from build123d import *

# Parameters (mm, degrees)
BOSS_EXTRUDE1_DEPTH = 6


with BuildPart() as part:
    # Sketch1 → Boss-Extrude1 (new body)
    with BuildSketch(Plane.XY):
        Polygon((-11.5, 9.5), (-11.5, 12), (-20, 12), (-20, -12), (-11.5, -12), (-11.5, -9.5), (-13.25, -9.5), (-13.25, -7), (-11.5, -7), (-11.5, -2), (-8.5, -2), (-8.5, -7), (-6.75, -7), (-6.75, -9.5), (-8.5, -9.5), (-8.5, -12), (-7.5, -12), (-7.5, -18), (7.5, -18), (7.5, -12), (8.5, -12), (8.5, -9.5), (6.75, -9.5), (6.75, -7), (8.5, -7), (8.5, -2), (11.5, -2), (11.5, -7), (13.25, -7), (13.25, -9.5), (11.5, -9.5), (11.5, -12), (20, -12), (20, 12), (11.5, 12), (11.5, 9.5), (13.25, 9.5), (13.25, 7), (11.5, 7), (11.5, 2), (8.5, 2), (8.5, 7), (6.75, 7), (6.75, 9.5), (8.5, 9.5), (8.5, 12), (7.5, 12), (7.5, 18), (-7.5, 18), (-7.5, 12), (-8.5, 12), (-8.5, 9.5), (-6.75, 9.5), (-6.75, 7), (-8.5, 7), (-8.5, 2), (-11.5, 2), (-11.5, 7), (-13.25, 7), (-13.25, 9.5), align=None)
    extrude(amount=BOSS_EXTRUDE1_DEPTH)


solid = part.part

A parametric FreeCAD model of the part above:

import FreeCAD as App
import Part
import Sketcher

doc = App.newDocument("Part")
body = doc.addObject("PartDesign::Body", "Body")

# Sketch on XY plane
sketch1 = body.newObject("Sketcher::SketchObject", "Sketch")
sketch1.AttachmentSupport = (doc.getObject("XY_Plane"), [""])
sketch1.MapMode = "FlatFace"
sketch1.addGeometry([
    Part.LineSegment(App.Vector(-11.5, 9.5, 0), App.Vector(-11.5, 12, 0)),  # 0
    Part.LineSegment(App.Vector(-11.5, 12, 0), App.Vector(-20, 12, 0)),  # 1
    Part.LineSegment(App.Vector(-20, 12, 0), App.Vector(-20, -12, 0)),  # 2
    Part.LineSegment(App.Vector(-20, -12, 0), App.Vector(-11.5, -12, 0)),  # 3
    Part.LineSegment(App.Vector(-11.5, -12, 0), App.Vector(-11.5, -9.5, 0)),  # 4
    Part.LineSegment(App.Vector(-11.5, -9.5, 0), App.Vector(-13.2, -9.5, 0)),  # 5
    Part.LineSegment(App.Vector(-13.2, -9.5, 0), App.Vector(-13.2, -7, 0)),  # 6
    Part.LineSegment(App.Vector(-13.2, -7, 0), App.Vector(-11.5, -7, 0)),  # 7
    Part.LineSegment(App.Vector(-11.5, -7, 0), App.Vector(-11.5, -2, 0)),  # 8
    Part.LineSegment(App.Vector(-11.5, -2, 0), App.Vector(-8.5, -2, 0)),  # 9
    Part.LineSegment(App.Vector(-8.5, -2, 0), App.Vector(-8.5, -7, 0)),  # 10
    Part.LineSegment(App.Vector(-8.5, -7, 0), App.Vector(-6.8, -7, 0)),  # 11
    Part.LineSegment(App.Vector(-6.8, -7, 0), App.Vector(-6.8, -9.5, 0)),  # 12
    Part.LineSegment(App.Vector(-6.8, -9.5, 0), App.Vector(-8.5, -9.5, 0)),  # 13
    Part.LineSegment(App.Vector(-8.5, -9.5, 0), App.Vector(-8.5, -12, 0)),  # 14
    Part.LineSegment(App.Vector(-8.5, -12, 0), App.Vector(-7.5, -12, 0)),  # 15
    Part.LineSegment(App.Vector(-7.5, -12, 0), App.Vector(-7.5, -18, 0)),  # 16
    Part.LineSegment(App.Vector(-7.5, -18, 0), App.Vector(7.5, -18, 0)),  # 17
    Part.LineSegment(App.Vector(7.5, -18, 0), App.Vector(7.5, -12, 0)),  # 18
    Part.LineSegment(App.Vector(7.5, -12, 0), App.Vector(8.5, -12, 0)),  # 19
    Part.LineSegment(App.Vector(8.5, -12, 0), App.Vector(8.5, -9.5, 0)),  # 20
    Part.LineSegment(App.Vector(8.5, -9.5, 0), App.Vector(6.8, -9.5, 0)),  # 21
    Part.LineSegment(App.Vector(6.8, -9.5, 0), App.Vector(6.8, -7, 0)),  # 22
    Part.LineSegment(App.Vector(6.8, -7, 0), App.Vector(8.5, -7, 0)),  # 23
    Part.LineSegment(App.Vector(8.5, -7, 0), App.Vector(8.5, -2, 0)),  # 24
    Part.LineSegment(App.Vector(8.5, -2, 0), App.Vector(11.5, -2, 0)),  # 25
    Part.LineSegment(App.Vector(11.5, -2, 0), App.Vector(11.5, -7, 0)),  # 26
    Part.LineSegment(App.Vector(11.5, -7, 0), App.Vector(13.2, -7, 0)),  # 27
    Part.LineSegment(App.Vector(13.2, -7, 0), App.Vector(13.2, -9.5, 0)),  # 28
    Part.LineSegment(App.Vector(13.2, -9.5, 0), App.Vector(11.5, -9.5, 0)),  # 29
    Part.LineSegment(App.Vector(11.5, -9.5, 0), App.Vector(11.5, -12, 0)),  # 30
    Part.LineSegment(App.Vector(11.5, -12, 0), App.Vector(20, -12, 0)),  # 31
    Part.LineSegment(App.Vector(20, -12, 0), App.Vector(20, 12, 0)),  # 32
    Part.LineSegment(App.Vector(20, 12, 0), App.Vector(11.5, 12, 0)),  # 33
    Part.LineSegment(App.Vector(11.5, 12, 0), App.Vector(11.5, 9.5, 0)),  # 34
    Part.LineSegment(App.Vector(11.5, 9.5, 0), App.Vector(13.2, 9.5, 0)),  # 35
    Part.LineSegment(App.Vector(13.2, 9.5, 0), App.Vector(13.2, 7, 0)),  # 36
    Part.LineSegment(App.Vector(13.2, 7, 0), App.Vector(11.5, 7, 0)),  # 37
    Part.LineSegment(App.Vector(11.5, 7, 0), App.Vector(11.5, 2, 0)),  # 38
    Part.LineSegment(App.Vector(11.5, 2, 0), App.Vector(8.5, 2, 0)),  # 39
    Part.LineSegment(App.Vector(8.5, 2, 0), App.Vector(8.5, 7, 0)),  # 40
    Part.LineSegment(App.Vector(8.5, 7, 0), App.Vector(6.8, 7, 0)),  # 41
    Part.LineSegment(App.Vector(6.8, 7, 0), App.Vector(6.8, 9.5, 0)),  # 42
    Part.LineSegment(App.Vector(6.8, 9.5, 0), App.Vector(8.5, 9.5, 0)),  # 43
    Part.LineSegment(App.Vector(8.5, 9.5, 0), App.Vector(8.5, 12, 0)),  # 44
    Part.LineSegment(App.Vector(8.5, 12, 0), App.Vector(7.5, 12, 0)),  # 45
    Part.LineSegment(App.Vector(7.5, 12, 0), App.Vector(7.5, 18, 0)),  # 46
    Part.LineSegment(App.Vector(7.5, 18, 0), App.Vector(-7.5, 18, 0)),  # 47
    Part.LineSegment(App.Vector(-7.5, 18, 0), App.Vector(-7.5, 12, 0)),  # 48
    Part.LineSegment(App.Vector(-7.5, 12, 0), App.Vector(-8.5, 12, 0)),  # 49
    Part.LineSegment(App.Vector(-8.5, 12, 0), App.Vector(-8.5, 9.5, 0)),  # 50
    Part.LineSegment(App.Vector(-8.5, 9.5, 0), App.Vector(-6.8, 9.5, 0)),  # 51
    Part.LineSegment(App.Vector(-6.8, 9.5, 0), App.Vector(-6.8, 7, 0)),  # 52
    Part.LineSegment(App.Vector(-6.8, 7, 0), App.Vector(-8.5, 7, 0)),  # 53
    Part.LineSegment(App.Vector(-8.5, 7, 0), App.Vector(-8.5, 2, 0)),  # 54
    Part.LineSegment(App.Vector(-8.5, 2, 0), App.Vector(-11.5, 2, 0)),  # 55
    Part.LineSegment(App.Vector(-11.5, 2, 0), App.Vector(-11.5, 7, 0)),  # 56
    Part.LineSegment(App.Vector(-11.5, 7, 0), App.Vector(-13.2, 7, 0)),  # 57
    Part.LineSegment(App.Vector(-13.2, 7, 0), App.Vector(-13.2, 9.5, 0)),  # 58
    Part.LineSegment(App.Vector(-13.2, 9.5, 0), App.Vector(-11.5, 9.5, 0)),  # 59
], False)
sketch1.addConstraint([
    Sketcher.Constraint("Coincident", 0, 2, 1, 1),
    Sketcher.Constraint("Coincident", 1, 2, 2, 1),
    Sketcher.Constraint("Coincident", 2, 2, 3, 1),
    Sketcher.Constraint("Coincident", 3, 2, 4, 1),
    Sketcher.Constraint("Coincident", 4, 2, 5, 1),
    Sketcher.Constraint("Coincident", 5, 2, 6, 1),
    Sketcher.Constraint("Coincident", 6, 2, 7, 1),
    Sketcher.Constraint("Coincident", 7, 2, 8, 1),
    Sketcher.Constraint("Coincident", 8, 2, 9, 1),
    Sketcher.Constraint("Coincident", 9, 2, 10, 1),
    Sketcher.Constraint("Coincident", 10, 2, 11, 1),
    Sketcher.Constraint("Coincident", 11, 2, 12, 1),
    Sketcher.Constraint("Coincident", 12, 2, 13, 1),
    Sketcher.Constraint("Coincident", 13, 2, 14, 1),
    Sketcher.Constraint("Coincident", 14, 2, 15, 1),
    Sketcher.Constraint("Coincident", 15, 2, 16, 1),
    Sketcher.Constraint("Coincident", 16, 2, 17, 1),
    Sketcher.Constraint("Coincident", 17, 2, 18, 1),
    Sketcher.Constraint("Coincident", 18, 2, 19, 1),
    Sketcher.Constraint("Coincident", 19, 2, 20, 1),
    Sketcher.Constraint("Coincident", 20, 2, 21, 1),
    Sketcher.Constraint("Coincident", 21, 2, 22, 1),
    Sketcher.Constraint("Coincident", 22, 2, 23, 1),
    Sketcher.Constraint("Coincident", 23, 2, 24, 1),
    Sketcher.Constraint("Coincident", 24, 2, 25, 1),
    Sketcher.Constraint("Coincident", 25, 2, 26, 1),
    Sketcher.Constraint("Coincident", 26, 2, 27, 1),
    Sketcher.Constraint("Coincident", 27, 2, 28, 1),
    Sketcher.Constraint("Coincident", 28, 2, 29, 1),
    Sketcher.Constraint("Coincident", 29, 2, 30, 1),
    Sketcher.Constraint("Coincident", 30, 2, 31, 1),
    Sketcher.Constraint("Coincident", 31, 2, 32, 1),
    Sketcher.Constraint("Coincident", 32, 2, 33, 1),
    Sketcher.Constraint("Coincident", 33, 2, 34, 1),
    Sketcher.Constraint("Coincident", 34, 2, 35, 1),
    Sketcher.Constraint("Coincident", 35, 2, 36, 1),
    Sketcher.Constraint("Coincident", 36, 2, 37, 1),
    Sketcher.Constraint("Coincident", 37, 2, 38, 1),
    Sketcher.Constraint("Coincident", 38, 2, 39, 1),
    Sketcher.Constraint("Coincident", 39, 2, 40, 1),
    Sketcher.Constraint("Coincident", 40, 2, 41, 1),
    Sketcher.Constraint("Coincident", 41, 2, 42, 1),
    Sketcher.Constraint("Coincident", 42, 2, 43, 1),
    Sketcher.Constraint("Coincident", 43, 2, 44, 1),
    Sketcher.Constraint("Coincident", 44, 2, 45, 1),
    Sketcher.Constraint("Coincident", 45, 2, 46, 1),
    Sketcher.Constraint("Coincident", 46, 2, 47, 1),
    Sketcher.Constraint("Coincident", 47, 2, 48, 1),
    Sketcher.Constraint("Coincident", 48, 2, 49, 1),
    Sketcher.Constraint("Coincident", 49, 2, 50, 1),
    Sketcher.Constraint("Coincident", 50, 2, 51, 1),
    Sketcher.Constraint("Coincident", 51, 2, 52, 1),
    Sketcher.Constraint("Coincident", 52, 2, 53, 1),
    Sketcher.Constraint("Coincident", 53, 2, 54, 1),
    Sketcher.Constraint("Coincident", 54, 2, 55, 1),
    Sketcher.Constraint("Coincident", 55, 2, 56, 1),
    Sketcher.Constraint("Coincident", 56, 2, 57, 1),
    Sketcher.Constraint("Coincident", 57, 2, 58, 1),
    Sketcher.Constraint("Coincident", 58, 2, 59, 1),
    Sketcher.Constraint("Coincident", 59, 2, 0, 1),
    Sketcher.Constraint("Vertical", 0),
    Sketcher.Constraint("Horizontal", 1),
    Sketcher.Constraint("Vertical", 2),
    Sketcher.Constraint("Horizontal", 3),
    Sketcher.Constraint("Vertical", 4),
    Sketcher.Constraint("Horizontal", 5),
    Sketcher.Constraint("Vertical", 6),
    Sketcher.Constraint("Horizontal", 7),
    Sketcher.Constraint("Vertical", 8),
    Sketcher.Constraint("Horizontal", 9),
    Sketcher.Constraint("Vertical", 10),
    Sketcher.Constraint("Horizontal", 11),
    Sketcher.Constraint("Vertical", 12),
    Sketcher.Constraint("Horizontal", 13),
    Sketcher.Constraint("Vertical", 14),
    Sketcher.Constraint("Horizontal", 15),
    Sketcher.Constraint("Vertical", 16),
    Sketcher.Constraint("Horizontal", 17),
    Sketcher.Constraint("Vertical", 18),
    Sketcher.Constraint("Horizontal", 19),
    Sketcher.Constraint("Vertical", 20),
    Sketcher.Constraint("Horizontal", 21),
    Sketcher.Constraint("Vertical", 22),
    Sketcher.Constraint("Horizontal", 23),
    Sketcher.Constraint("Vertical", 24),
    Sketcher.Constraint("Horizontal", 25),
    Sketcher.Constraint("Vertical", 26),
    Sketcher.Constraint("Horizontal", 27),
    Sketcher.Constraint("Vertical", 28),
    Sketcher.Constraint("Horizontal", 29),
    Sketcher.Constraint("Vertical", 30),
    Sketcher.Constraint("Horizontal", 31),
    Sketcher.Constraint("Vertical", 32),
    Sketcher.Constraint("Horizontal", 33),
    Sketcher.Constraint("Vertical", 34),
    Sketcher.Constraint("Horizontal", 35),
    Sketcher.Constraint("Vertical", 36),
    Sketcher.Constraint("Horizontal", 37),
    Sketcher.Constraint("Vertical", 38),
    Sketcher.Constraint("Horizontal", 39),
    Sketcher.Constraint("Vertical", 40),
    Sketcher.Constraint("Horizontal", 41),
    Sketcher.Constraint("Vertical", 42),
    Sketcher.Constraint("Horizontal", 43),
    Sketcher.Constraint("Vertical", 44),
    Sketcher.Constraint("Horizontal", 45),
    Sketcher.Constraint("Vertical", 46),
    Sketcher.Constraint("Horizontal", 47),
    Sketcher.Constraint("Vertical", 48),
    Sketcher.Constraint("Horizontal", 49),
    Sketcher.Constraint("Vertical", 50),
    Sketcher.Constraint("Horizontal", 51),
    Sketcher.Constraint("Vertical", 52),
    Sketcher.Constraint("Horizontal", 53),
    Sketcher.Constraint("Vertical", 54),
    Sketcher.Constraint("Horizontal", 55),
    Sketcher.Constraint("Vertical", 56),
    Sketcher.Constraint("Horizontal", 57),
    Sketcher.Constraint("Vertical", 58),
    Sketcher.Constraint("Horizontal", 59),
    Sketcher.Constraint("Symmetric", 0, 2, 30, 2, -1, 1),
    Sketcher.Constraint("Symmetric", 2, 2, 32, 2, -1, 1),
    Sketcher.Constraint("Symmetric", 4, 2, 34, 2, -1, 1),
    Sketcher.Constraint("Symmetric", 6, 2, 36, 2, -1, 1),
    Sketcher.Constraint("Symmetric", 8, 2, 38, 2, -1, 1),
    Sketcher.Constraint("Symmetric", 10, 2, 40, 2, -1, 1),
    Sketcher.Constraint("Symmetric", 12, 2, 42, 2, -1, 1),
    Sketcher.Constraint("Symmetric", 14, 2, 44, 2, -1, 1),
    Sketcher.Constraint("Symmetric", 16, 2, 46, 2, -1, 1),
    Sketcher.Constraint("Symmetric", 18, 2, 48, 2, -1, 1),
    Sketcher.Constraint("Symmetric", 20, 2, 50, 2, -1, 1),
    Sketcher.Constraint("Symmetric", 22, 2, 52, 2, -1, 1),
    Sketcher.Constraint("Symmetric", 24, 2, 54, 2, -1, 1),
    Sketcher.Constraint("Symmetric", 26, 2, 56, 2, -1, 1),
    Sketcher.Constraint("Symmetric", 28, 2, 58, 2, -1, 1),
    Sketcher.Constraint("Symmetric", 15, 2, 18, 2, -2),
    Sketcher.Constraint("Symmetric", 13, 2, 20, 2, -2),
    Sketcher.Constraint("Symmetric", 11, 2, 22, 2, -2),
    Sketcher.Constraint("Symmetric", 9, 2, 24, 2, -2),
    Sketcher.Constraint("Symmetric", 7, 2, 26, 2, -2),
    Sketcher.Constraint("Symmetric", 5, 2, 28, 2, -2),
    Sketcher.Constraint("Symmetric", 3, 2, 30, 2, -2),
    Sketcher.Constraint("Horizontal", 7, 2, 10, 2),
    Sketcher.Constraint("Horizontal", 5, 2, 12, 2),
    Sketcher.Constraint("Horizontal", 3, 2, 14, 2),
    Sketcher.Constraint("Vertical", 4, 2, 7, 2),
    Sketcher.Constraint("Vertical", 10, 2, 13, 2),
    Sketcher.Constraint("Equal", 7, 11),
    Sketcher.Constraint("Equal", 4, 6),
    Sketcher.Constraint("DistanceX", 9, 1, 9, 2, 3.0),
    Sketcher.Constraint("DistanceX", 15, 1, 15, 2, 1.0),
    Sketcher.Constraint("DistanceX", 17, 1, 17, 2, 15.0),
    Sketcher.Constraint("DistanceY", 2, 2, 2, 1, 24.0),
    Sketcher.Constraint("DistanceY", 8, 1, 8, 2, 5.0),
    Sketcher.Constraint("DistanceY", 16, 2, 16, 1, 6.0),
    Sketcher.Constraint("DistanceX", 1, 2, 1, 1, 8.5),
    Sketcher.Constraint("DistanceY", 0, 1, 0, 2, 2.5),
    Sketcher.Constraint("DistanceX", 5, 2, 5, 1, 1.75),
])
pad1 = body.newObject("PartDesign::Pad", "Pad")
pad1.Profile = sketch1
pad1.Length = 6

doc.recompute()
